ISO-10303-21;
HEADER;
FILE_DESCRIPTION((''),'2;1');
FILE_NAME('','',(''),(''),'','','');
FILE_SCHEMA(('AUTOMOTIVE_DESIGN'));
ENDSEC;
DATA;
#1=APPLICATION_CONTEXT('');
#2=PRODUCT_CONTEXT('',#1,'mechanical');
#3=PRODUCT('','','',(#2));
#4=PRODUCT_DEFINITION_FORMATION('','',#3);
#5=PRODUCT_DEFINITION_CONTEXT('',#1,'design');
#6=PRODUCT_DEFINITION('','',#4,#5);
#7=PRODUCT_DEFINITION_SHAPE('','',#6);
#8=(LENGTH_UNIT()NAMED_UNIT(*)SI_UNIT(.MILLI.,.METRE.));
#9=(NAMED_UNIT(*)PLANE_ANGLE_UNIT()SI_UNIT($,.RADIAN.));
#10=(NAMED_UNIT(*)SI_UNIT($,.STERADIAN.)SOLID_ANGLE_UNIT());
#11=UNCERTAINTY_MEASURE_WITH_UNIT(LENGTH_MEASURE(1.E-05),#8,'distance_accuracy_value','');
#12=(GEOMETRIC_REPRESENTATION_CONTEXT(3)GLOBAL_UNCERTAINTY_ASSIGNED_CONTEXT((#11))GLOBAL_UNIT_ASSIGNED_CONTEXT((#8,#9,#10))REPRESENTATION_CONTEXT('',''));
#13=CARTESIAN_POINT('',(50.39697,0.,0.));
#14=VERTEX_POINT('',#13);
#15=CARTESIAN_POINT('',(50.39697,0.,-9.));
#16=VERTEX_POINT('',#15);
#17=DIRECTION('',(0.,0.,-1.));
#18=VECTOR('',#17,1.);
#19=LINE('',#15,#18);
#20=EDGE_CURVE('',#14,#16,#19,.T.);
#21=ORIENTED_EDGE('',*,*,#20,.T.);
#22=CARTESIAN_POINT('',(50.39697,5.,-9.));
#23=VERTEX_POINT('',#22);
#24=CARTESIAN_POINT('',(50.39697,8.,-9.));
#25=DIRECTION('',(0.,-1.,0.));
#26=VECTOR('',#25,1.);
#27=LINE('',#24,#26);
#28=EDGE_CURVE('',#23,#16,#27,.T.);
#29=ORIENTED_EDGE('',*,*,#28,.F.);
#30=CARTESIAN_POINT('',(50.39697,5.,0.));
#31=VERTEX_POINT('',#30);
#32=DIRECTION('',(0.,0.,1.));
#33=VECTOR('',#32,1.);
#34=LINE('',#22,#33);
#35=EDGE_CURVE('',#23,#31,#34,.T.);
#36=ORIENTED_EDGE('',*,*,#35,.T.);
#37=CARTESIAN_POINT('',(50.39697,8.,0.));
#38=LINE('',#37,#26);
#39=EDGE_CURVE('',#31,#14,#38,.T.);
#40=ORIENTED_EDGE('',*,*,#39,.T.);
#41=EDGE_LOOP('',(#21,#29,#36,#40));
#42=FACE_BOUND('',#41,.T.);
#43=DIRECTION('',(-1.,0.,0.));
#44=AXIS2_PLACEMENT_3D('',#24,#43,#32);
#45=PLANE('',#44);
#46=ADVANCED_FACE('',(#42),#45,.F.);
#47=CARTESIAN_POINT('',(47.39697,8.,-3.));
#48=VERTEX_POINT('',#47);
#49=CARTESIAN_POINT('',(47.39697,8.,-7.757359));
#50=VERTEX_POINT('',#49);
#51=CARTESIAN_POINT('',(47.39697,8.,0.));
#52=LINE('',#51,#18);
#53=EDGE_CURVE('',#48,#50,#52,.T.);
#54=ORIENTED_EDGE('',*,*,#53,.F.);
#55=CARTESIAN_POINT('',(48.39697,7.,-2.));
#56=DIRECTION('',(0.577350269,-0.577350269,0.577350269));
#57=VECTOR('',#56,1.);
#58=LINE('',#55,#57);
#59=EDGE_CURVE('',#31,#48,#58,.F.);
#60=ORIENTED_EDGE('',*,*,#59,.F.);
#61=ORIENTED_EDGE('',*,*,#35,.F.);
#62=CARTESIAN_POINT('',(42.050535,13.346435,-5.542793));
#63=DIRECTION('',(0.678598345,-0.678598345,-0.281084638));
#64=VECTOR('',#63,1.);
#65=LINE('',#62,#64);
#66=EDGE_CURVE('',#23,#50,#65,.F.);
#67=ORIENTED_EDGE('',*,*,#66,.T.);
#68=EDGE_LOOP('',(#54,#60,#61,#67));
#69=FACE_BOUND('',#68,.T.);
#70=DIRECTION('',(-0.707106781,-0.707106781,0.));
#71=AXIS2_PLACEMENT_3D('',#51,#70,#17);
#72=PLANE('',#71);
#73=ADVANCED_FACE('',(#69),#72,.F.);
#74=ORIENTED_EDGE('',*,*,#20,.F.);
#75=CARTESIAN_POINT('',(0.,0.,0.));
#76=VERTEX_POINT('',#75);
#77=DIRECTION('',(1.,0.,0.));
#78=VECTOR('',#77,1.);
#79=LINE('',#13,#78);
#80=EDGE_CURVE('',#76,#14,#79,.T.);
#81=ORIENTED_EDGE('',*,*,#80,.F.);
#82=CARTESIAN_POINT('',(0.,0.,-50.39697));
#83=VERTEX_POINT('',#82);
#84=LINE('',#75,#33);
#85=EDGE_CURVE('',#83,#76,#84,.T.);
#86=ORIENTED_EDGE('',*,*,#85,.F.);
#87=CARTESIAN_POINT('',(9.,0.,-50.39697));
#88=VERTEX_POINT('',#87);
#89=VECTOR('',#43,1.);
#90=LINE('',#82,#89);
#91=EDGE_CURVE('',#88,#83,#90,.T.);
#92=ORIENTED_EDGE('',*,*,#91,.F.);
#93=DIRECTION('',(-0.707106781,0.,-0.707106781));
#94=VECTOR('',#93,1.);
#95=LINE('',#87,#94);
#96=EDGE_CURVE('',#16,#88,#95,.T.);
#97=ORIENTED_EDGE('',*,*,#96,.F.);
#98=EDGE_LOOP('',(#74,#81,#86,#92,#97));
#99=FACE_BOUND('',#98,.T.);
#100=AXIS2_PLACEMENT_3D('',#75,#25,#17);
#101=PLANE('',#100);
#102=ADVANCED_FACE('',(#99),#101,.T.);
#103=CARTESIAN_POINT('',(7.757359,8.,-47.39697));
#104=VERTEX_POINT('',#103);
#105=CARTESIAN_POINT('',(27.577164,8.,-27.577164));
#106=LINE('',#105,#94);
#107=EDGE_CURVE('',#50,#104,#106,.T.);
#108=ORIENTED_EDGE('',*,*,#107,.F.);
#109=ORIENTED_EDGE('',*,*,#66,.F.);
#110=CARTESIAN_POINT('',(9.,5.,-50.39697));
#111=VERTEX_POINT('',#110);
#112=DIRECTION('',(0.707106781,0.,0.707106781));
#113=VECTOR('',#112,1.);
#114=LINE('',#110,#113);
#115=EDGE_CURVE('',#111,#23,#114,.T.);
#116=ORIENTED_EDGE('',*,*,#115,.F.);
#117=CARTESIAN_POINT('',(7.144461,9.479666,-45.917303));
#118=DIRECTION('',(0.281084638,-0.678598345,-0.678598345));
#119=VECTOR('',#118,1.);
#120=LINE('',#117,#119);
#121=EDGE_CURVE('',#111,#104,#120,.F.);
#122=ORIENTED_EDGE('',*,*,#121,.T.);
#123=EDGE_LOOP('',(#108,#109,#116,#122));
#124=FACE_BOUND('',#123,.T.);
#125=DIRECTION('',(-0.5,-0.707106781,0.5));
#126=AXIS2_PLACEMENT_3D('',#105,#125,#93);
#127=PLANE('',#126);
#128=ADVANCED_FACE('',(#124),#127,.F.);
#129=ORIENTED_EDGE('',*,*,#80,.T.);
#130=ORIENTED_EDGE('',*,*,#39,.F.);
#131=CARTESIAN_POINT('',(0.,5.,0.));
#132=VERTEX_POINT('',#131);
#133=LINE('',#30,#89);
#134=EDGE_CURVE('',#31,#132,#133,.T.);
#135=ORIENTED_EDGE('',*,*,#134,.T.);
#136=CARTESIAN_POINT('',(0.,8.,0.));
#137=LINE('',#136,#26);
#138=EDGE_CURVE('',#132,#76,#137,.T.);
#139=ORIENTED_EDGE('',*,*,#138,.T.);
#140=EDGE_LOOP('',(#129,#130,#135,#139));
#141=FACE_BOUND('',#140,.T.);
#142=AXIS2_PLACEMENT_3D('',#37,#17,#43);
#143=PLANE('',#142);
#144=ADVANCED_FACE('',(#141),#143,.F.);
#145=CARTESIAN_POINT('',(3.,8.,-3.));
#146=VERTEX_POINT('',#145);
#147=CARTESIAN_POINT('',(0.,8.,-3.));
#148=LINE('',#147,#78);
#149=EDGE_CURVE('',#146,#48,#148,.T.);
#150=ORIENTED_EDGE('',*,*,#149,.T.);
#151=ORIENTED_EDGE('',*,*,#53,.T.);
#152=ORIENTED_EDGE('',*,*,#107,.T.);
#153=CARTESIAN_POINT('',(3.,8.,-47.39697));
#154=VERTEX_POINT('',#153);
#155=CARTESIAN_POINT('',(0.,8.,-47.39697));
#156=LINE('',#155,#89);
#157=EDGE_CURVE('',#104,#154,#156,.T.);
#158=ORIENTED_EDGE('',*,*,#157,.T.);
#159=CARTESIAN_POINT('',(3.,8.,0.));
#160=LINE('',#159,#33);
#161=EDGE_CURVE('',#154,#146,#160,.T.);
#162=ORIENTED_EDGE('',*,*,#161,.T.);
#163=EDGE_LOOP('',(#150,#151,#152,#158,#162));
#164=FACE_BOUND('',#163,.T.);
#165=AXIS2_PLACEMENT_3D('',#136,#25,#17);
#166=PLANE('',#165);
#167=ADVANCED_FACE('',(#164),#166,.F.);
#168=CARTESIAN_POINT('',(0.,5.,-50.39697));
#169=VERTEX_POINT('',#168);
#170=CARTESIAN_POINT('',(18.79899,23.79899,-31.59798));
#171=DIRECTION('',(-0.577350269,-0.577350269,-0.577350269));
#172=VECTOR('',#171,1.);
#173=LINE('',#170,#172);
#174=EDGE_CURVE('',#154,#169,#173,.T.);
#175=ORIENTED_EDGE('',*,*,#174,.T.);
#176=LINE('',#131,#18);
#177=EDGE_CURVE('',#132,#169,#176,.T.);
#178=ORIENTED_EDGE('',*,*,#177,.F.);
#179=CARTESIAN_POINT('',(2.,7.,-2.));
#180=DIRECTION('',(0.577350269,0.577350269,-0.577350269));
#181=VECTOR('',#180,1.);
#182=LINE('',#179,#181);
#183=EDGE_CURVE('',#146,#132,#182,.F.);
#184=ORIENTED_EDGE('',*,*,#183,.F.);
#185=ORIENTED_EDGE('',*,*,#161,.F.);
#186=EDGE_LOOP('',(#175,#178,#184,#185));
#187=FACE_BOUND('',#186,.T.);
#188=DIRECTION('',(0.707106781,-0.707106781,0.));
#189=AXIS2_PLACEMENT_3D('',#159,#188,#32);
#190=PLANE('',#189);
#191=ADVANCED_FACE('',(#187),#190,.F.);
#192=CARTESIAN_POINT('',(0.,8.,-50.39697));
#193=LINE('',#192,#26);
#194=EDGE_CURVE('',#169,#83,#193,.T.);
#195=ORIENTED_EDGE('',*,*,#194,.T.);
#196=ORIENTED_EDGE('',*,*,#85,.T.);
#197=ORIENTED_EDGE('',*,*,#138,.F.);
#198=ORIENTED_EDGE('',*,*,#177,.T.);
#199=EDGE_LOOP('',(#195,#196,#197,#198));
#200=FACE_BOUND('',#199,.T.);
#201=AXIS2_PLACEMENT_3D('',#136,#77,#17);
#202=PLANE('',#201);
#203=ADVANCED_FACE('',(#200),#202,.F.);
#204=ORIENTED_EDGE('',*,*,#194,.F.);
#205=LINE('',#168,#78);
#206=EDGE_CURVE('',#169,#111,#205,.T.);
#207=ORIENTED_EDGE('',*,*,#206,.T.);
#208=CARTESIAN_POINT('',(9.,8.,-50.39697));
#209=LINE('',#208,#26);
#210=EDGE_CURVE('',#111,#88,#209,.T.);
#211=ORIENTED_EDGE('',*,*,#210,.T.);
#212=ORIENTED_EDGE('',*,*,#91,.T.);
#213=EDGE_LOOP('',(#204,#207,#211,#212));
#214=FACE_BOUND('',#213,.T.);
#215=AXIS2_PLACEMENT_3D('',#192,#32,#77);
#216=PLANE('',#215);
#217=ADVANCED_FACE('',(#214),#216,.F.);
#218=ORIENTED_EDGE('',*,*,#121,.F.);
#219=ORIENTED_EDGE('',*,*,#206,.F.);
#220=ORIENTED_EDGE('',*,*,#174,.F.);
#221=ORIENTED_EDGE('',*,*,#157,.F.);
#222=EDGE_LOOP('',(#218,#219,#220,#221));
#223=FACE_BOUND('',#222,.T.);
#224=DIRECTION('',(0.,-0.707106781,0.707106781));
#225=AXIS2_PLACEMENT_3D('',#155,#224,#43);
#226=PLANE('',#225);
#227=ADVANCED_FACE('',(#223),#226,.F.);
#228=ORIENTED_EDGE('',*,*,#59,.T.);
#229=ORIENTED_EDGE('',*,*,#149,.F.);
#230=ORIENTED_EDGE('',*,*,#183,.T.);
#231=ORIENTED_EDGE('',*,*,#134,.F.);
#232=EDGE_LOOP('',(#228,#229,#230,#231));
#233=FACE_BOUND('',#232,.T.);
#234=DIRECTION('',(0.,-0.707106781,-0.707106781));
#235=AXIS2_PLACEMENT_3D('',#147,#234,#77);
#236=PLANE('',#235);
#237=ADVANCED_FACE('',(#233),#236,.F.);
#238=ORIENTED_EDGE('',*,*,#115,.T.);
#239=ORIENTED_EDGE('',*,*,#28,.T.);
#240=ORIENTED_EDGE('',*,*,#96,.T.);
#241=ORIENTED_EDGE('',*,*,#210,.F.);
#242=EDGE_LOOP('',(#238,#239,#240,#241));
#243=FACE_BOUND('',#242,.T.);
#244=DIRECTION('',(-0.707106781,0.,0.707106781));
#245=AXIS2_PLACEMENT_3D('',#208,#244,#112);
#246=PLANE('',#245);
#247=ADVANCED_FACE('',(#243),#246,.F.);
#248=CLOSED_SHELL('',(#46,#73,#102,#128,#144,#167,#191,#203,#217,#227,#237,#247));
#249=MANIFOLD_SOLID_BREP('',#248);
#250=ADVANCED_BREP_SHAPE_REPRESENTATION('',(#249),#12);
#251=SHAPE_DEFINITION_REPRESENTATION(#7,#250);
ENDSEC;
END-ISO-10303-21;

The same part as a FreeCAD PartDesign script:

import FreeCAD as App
import Part
import Sketcher
from FreeCAD import Vector
Q = App.Units.Quantity


def edges_at(feature, points):
    """Names of the edges that pass closest to the given points."""
    edges = feature.Shape.Edges
    near = lambda p: min(range(len(edges)), key=lambda i: edges[i].distToShape(Part.Vertex(*p))[0])
    return sorted({f"Edge{near(p) + 1}" for p in points})


def add_polygon(sketch, points):
    """Adds a closed chain of lines whose ends are joined by coincident constraints."""
    first, n = sketch.GeometryCount, len(points)
    for a, b in zip(points, points[1:] + points[:1]):
        sketch.addGeometry(Part.LineSegment(App.Vector(*a, 0), App.Vector(*b, 0)), False)
    for i in range(n):
        sketch.addConstraint(Sketcher.Constraint("Coincident", first + i, 2, first + (i + 1) % n, 1))

doc = App.newDocument("Part")
body = doc.addObject("PartDesign::Body", "Body")

sketch1 = body.newObject("Sketcher::SketchObject", "Sketch")
sketch1.AttachmentSupport = (doc.getObject("XZ_Plane"), [""])
sketch1.MapMode = "FlatFace"
add_polygon(sketch1, [(0, -50), (0, 0), (50, 0), (50, -9), (9, -50)])
sketch1.addConstraint([
    Sketcher.Constraint("Vertical", 0),
    Sketcher.Constraint("Horizontal", 1),
    Sketcher.Constraint("Vertical", 2),
    Sketcher.Constraint("Horizontal", 4),
    Sketcher.Constraint("Coincident", 0, 2, -1, 1),
    Sketcher.Constraint("Equal", 1, 0),
    Sketcher.Constraint("Equal", 4, 2),
    Sketcher.Constraint("DistanceX", 4, 2, 4, 1, Q("9 mm")),
    Sketcher.Constraint("DistanceX", 1, 1, 1, 2, Q("50.39697 mm")),
])
pad1 = body.newObject("PartDesign::Pad", "Pad")
pad1.Profile = sketch1
pad1.Length = 8
pad1.Reversed = True
doc.recompute()

chamfer = body.newObject("PartDesign::Chamfer", "Chamfer")
chamfer.Base = (pad1, edges_at(pad1, [
    (29.698, 8, -29.698),
    (4.5, 8, -50.397),
    (0, 8, -25.198),
    (25.198, 8, 0),
    (50.397, 8, -4.5),
]))
chamfer.Size = 3

doc.recompute()
